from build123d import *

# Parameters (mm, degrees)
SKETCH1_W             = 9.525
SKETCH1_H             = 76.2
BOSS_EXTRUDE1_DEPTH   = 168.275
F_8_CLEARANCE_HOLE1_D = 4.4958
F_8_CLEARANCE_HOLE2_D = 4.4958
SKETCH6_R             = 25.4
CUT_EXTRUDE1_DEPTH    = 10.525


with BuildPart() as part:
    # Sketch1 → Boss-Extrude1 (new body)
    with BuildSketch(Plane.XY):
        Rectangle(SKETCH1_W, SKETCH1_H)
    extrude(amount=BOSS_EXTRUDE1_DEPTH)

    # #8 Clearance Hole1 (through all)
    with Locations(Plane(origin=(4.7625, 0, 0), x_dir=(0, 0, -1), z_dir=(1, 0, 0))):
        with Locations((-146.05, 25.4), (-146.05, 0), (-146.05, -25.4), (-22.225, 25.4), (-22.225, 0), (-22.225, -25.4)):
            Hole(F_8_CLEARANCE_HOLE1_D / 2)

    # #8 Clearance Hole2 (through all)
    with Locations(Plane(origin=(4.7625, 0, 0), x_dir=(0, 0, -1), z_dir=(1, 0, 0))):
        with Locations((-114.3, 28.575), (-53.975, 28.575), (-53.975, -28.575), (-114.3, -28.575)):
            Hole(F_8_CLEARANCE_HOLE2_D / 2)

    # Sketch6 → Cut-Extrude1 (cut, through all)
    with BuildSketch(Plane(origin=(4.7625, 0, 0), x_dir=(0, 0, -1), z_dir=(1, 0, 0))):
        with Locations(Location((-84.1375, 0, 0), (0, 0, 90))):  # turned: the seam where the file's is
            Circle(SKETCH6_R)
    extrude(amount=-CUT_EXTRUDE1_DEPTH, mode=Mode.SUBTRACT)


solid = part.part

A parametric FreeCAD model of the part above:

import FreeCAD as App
import Part
import Sketcher
from FreeCAD import Vector
Q = App.Units.Quantity

doc = App.newDocument("Part")
params = doc.addObject("Spreadsheet::Sheet", "Params")
for row, (alias, value) in enumerate([
    ("sketch1_height", "3 in"),
    ("sketch1_width", "0.375 in"),
    ("pad1_length", "6.625 in"),
    ("sketch2_diameter", "0.177 in"),
    ("hole_diameter", "0.177 in"),
    ("sketch3_diameter", "0.177 in"),
    ("hole2_diameter", "0.177 in"),
    ("sketch4_diameter", "2 in"),
], start=1):
    params.set(f"A{row}", alias)
    params.set(f"B{row}", "=" + value)
    params.setAlias(f"B{row}", alias)

body = doc.addObject("PartDesign::Body", "Body")

sketch1 = doc.addObject("Sketcher::SketchObject", "Sketch")
body.addObject(sketch1)
sketch1.AttachmentSupport = (doc.XY_Plane, [""])
sketch1.MapMode = "FlatFace"
sketch1.addGeometry(Part.LineSegment(Vector(-5, 38, 0), Vector(-5, -38, 0)), False)
sketch1.addGeometry(Part.LineSegment(Vector(-5, -38, 0), Vector(5, -38, 0)), False)
sketch1.addGeometry(Part.LineSegment(Vector(5, -38, 0), Vector(5, 38, 0)), False)
sketch1.addGeometry(Part.LineSegment(Vector(5, 38, 0), Vector(-5, 38, 0)), False)
sketch1.addConstraint(Sketcher.Constraint("Coincident", 0, 2, 1, 1))
sketch1.addConstraint(Sketcher.Constraint("Coincident", 1, 2, 2, 1))
sketch1.addConstraint(Sketcher.Constraint("Coincident", 2, 2, 3, 1))
sketch1.addConstraint(Sketcher.Constraint("Coincident", 3, 2, 0, 1))
sketch1.addConstraint(Sketcher.Constraint("Vertical", 0))
sketch1.addConstraint(Sketcher.Constraint("Horizontal", 1))
sketch1.addConstraint(Sketcher.Constraint("Vertical", 2))
sketch1.addConstraint(Sketcher.Constraint("Horizontal", 3))
sketch1.addConstraint(Sketcher.Constraint("Symmetric", 0, 2, 2, 2, -1, 1))
sketch1.addConstraint(Sketcher.Constraint("DistanceY", 0, 2, 0, 1, Q("3 in")))
sketch1.addConstraint(Sketcher.Constraint("DistanceX", 1, 1, 1, 2, Q("0.375 in")))
sketch1.setExpression("Constraints[9]", "Params.sketch1_height")
sketch1.setExpression("Constraints[10]", "Params.sketch1_width")
pad1 = doc.addObject("PartDesign::Pad", "Pad")
body.addObject(pad1)
pad1.Profile = sketch1
pad1.setExpression("Length", "Params.pad1_length")

sketch2 = doc.addObject("Sketcher::SketchObject", "Sketch001")
body.addObject(sketch2)
sketch2.AttachmentSupport = (doc.YZ_Plane, [""])
sketch2.MapMode = "FlatFace"
sketch2.AttachmentOffset = App.Placement(Vector(0, 0, 0.1875 * 25.4), App.Rotation())
sketch2.addGeometry(Part.Circle(Vector(25.4, 146.1, 0), Vector(0, 0, 1), 2.2), False)
sketch2.addGeometry(Part.Circle(Vector(0, 146.1, 0), Vector(0, 0, 1), 2.2), False)
sketch2.addGeometry(Part.Circle(Vector(-25.4, 146.1, 0), Vector(0, 0, 1), 2.2), False)
sketch2.addGeometry(Part.Circle(Vector(25.4, 22.2, 0), Vector(0, 0, 1), 2.2), False)
sketch2.addGeometry(Part.Circle(Vector(0, 22.2, 0), Vector(0, 0, 1), 2.2), False)
sketch2.addGeometry(Part.Circle(Vector(-25.4, 22.2, 0), Vector(0, 0, 1), 2.2), False)
sketch2.addConstraint(Sketcher.Constraint("Equal", 0, 1))
sketch2.addConstraint(Sketcher.Constraint("Equal", 1, 2))
sketch2.addConstraint(Sketcher.Constraint("Equal", 2, 3))
sketch2.addConstraint(Sketcher.Constraint("Equal", 3, 4))
sketch2.addConstraint(Sketcher.Constraint("Equal", 4, 5))
sketch2.addConstraint(Sketcher.Constraint("Symmetric", 0, 3, 2, 3, -2))
sketch2.addConstraint(Sketcher.Constraint("Symmetric", 3, 3, 5, 3, -2))
sketch2.addConstraint(Sketcher.Constraint("PointOnObject", 1, 3, -2))
sketch2.addConstraint(Sketcher.Constraint("PointOnObject", 4, 3, -2))
sketch2.addConstraint(Sketcher.Constraint("Horizontal", 0, 3, 1, 3))
sketch2.addConstraint(Sketcher.Constraint("Horizontal", 3, 3, 4, 3))
sketch2.addConstraint(Sketcher.Constraint("Vertical", 0, 3, 3, 3))
sketch2.addConstraint(Sketcher.Constraint("Diameter", 0, Q("0.177 in")))
sketch2.addConstraint(Sketcher.Constraint("DistanceX", -1, 1, 0, 3, Q("1 in")))
sketch2.addConstraint(Sketcher.Constraint("DistanceY", -1, 1, 0, 3, Q("5.75 in")))
sketch2.addConstraint(Sketcher.Constraint("DistanceY", -1, 1, 3, 3, Q("0.875 in")))
sketch2.setExpression("Constraints[12]", "Params.sketch2_diameter")
doc.recompute()
hole = doc.addObject("PartDesign::Hole", "Hole")
body.addObject(hole)
hole.Profile = sketch2
hole.ThreadType = "None"
hole.setExpression("Diameter", "Params.hole_diameter")
hole.DepthType = "ThroughAll"

sketch3 = doc.addObject("Sketcher::SketchObject", "Sketch002")
body.addObject(sketch3)
sketch3.AttachmentSupport = (doc.YZ_Plane, [""])
sketch3.MapMode = "FlatFace"
sketch3.AttachmentOffset = App.Placement(Vector(0, 0, 0.1875 * 25.4), App.Rotation())
sketch3.addGeometry(Part.Circle(Vector(28.6, 114.3, 0), Vector(0, 0, 1), 2.2), False)
sketch3.addGeometry(Part.Circle(Vector(28.6, 54, 0), Vector(0, 0, 1), 2.2), False)
sketch3.addGeometry(Part.Circle(Vector(-28.6, 54, 0), Vector(0, 0, 1), 2.2), False)
sketch3.addGeometry(Part.Circle(Vector(-28.6, 114.3, 0), Vector(0, 0, 1), 2.2), False)
sketch3.addConstraint(Sketcher.Constraint("Equal", 0, 1))
sketch3.addConstraint(Sketcher.Constraint("Equal", 1, 2))
sketch3.addConstraint(Sketcher.Constraint("Equal", 2, 3))
sketch3.addConstraint(Sketcher.Constraint("Symmetric", 1, 3, 2, 3, -2))
sketch3.addConstraint(Sketcher.Constraint("Symmetric", 0, 3, 3, 3, -2))
sketch3.addConstraint(Sketcher.Constraint("Vertical", 0, 3, 1, 3))
sketch3.addConstraint(Sketcher.Constraint("Diameter", 0, Q("0.177 in")))
sketch3.addConstraint(Sketcher.Constraint("DistanceY", -1, 1, 0, 3, Q("4.5 in")))
sketch3.addConstraint(Sketcher.Constraint("DistanceX", 2, 3, 1, 3, Q("2.25 in")))
sketch3.addConstraint(Sketcher.Constraint("DistanceY", -1, 1, 1, 3, Q("2.125 in")))
sketch3.setExpression("Constraints[6]", "Params.sketch3_diameter")
doc.recompute()
hole2 = doc.addObject("PartDesign::Hole", "Hole001")
body.addObject(hole2)
hole2.Profile = sketch3
hole2.ThreadType = "None"
hole2.setExpression("Diameter", "Params.hole2_diameter")
hole2.DepthType = "ThroughAll"

sketch4 = doc.addObject("Sketcher::SketchObject", "Sketch003")
body.addObject(sketch4)
sketch4.AttachmentSupport = (doc.YZ_Plane, [""])
sketch4.MapMode = "FlatFace"
sketch4.AttachmentOffset = App.Placement(Vector(0, 0, 0.1875 * 25.4), App.Rotation())
sketch4.addGeometry(Part.Circle(Vector(0, 84, 0), Vector(0, 0, 1), 25), False)
sketch4.addConstraint(Sketcher.Constraint("PointOnObject", 0, 3, -2))
sketch4.addConstraint(Sketcher.Constraint("Diameter", 0, Q("2 in")))
sketch4.addConstraint(Sketcher.Constraint("DistanceY", -1, 1, 0, 3, Q("3.3125 in")))
sketch4.setExpression("Constraints[1]", "Params.sketch4_diameter")
pocket1 = doc.addObject("PartDesign::Pocket", "Pocket")
body.addObject(pocket1)
pocket1.Profile = sketch4
pocket1.Type = "ThroughAll"

doc.recompute()
